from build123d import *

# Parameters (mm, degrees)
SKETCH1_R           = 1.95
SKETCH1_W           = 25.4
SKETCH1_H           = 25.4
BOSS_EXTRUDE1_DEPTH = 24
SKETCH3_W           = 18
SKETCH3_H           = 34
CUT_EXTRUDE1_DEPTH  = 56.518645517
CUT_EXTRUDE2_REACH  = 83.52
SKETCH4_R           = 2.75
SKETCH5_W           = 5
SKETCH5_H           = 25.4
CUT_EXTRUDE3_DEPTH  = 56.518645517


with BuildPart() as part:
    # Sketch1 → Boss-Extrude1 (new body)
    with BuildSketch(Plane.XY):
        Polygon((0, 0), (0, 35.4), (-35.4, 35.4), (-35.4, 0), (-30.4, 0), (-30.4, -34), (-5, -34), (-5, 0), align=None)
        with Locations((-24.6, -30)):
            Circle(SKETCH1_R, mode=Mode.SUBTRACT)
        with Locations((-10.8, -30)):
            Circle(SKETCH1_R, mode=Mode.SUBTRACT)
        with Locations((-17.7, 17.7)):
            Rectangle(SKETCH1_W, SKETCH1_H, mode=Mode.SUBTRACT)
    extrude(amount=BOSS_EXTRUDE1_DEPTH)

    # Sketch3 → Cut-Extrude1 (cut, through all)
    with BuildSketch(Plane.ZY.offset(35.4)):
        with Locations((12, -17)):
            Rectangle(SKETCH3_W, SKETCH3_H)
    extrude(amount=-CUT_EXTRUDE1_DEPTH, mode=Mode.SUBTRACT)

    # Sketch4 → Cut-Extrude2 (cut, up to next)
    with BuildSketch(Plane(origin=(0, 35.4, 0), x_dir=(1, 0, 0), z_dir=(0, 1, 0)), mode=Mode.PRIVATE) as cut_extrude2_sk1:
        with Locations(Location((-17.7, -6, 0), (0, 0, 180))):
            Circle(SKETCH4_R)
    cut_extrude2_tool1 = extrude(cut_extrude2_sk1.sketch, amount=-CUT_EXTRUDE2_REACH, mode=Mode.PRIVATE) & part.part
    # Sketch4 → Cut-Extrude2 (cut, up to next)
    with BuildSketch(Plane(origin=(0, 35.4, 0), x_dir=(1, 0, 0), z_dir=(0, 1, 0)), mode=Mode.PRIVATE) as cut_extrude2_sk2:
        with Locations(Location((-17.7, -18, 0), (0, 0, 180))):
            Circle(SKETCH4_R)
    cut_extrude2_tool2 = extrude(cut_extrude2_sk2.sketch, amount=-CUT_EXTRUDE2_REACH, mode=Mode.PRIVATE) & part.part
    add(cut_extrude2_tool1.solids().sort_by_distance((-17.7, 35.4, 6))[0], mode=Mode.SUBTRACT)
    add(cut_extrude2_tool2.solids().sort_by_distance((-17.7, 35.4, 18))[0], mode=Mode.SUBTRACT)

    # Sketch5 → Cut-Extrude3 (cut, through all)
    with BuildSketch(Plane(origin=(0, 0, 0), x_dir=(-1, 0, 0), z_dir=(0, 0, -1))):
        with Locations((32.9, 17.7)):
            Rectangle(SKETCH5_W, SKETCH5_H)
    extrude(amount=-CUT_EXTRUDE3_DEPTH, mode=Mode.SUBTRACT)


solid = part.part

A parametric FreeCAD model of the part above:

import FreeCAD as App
import Part
import Sketcher
from FreeCAD import Vector


def add_polygon(sketch, points):
    """Adds a closed chain of lines whose ends are joined by coincident constraints."""
    first, n = sketch.GeometryCount, len(points)
    for a, b in zip(points, points[1:] + points[:1]):
        sketch.addGeometry(Part.LineSegment(App.Vector(*a, 0), App.Vector(*b, 0)), False)
    for i in range(n):
        sketch.addConstraint(Sketcher.Constraint("Coincident", first + i, 2, first + (i + 1) % n, 1))

doc = App.newDocument("Part")
body = doc.addObject("PartDesign::Body", "Body")

# Sketch on XY plane
sketch1 = body.newObject("Sketcher::SketchObject", "Sketch")
sketch1.AttachmentSupport = (doc.getObject("XY_Plane"), [""])
sketch1.MapMode = "FlatFace"
add_polygon(sketch1, [(0, 0), (0, 35.4), (-35.4, 35.4), (-35.4, 0), (-30.4, 0), (-30.4, -34), (-5, -34), (-5, 0)])  # lines 0-7
sketch1.addGeometry(Part.Circle(Vector(-24.6, -30, 0), Vector(0, 0, 1), 1.9), False)  # 8
sketch1.addGeometry(Part.Circle(Vector(-10.8, -30, 0), Vector(0, 0, 1), 1.9), False)  # 9
add_polygon(sketch1, [(-5, 5), (-30.4, 5), (-30.4, 30.4), (-5, 30.4)])  # lines 10-13
sketch1.addConstraint([
    Sketcher.Constraint("Vertical", 0),
    Sketcher.Constraint("Horizontal", 1),
    Sketcher.Constraint("Vertical", 2),
    Sketcher.Constraint("Horizontal", 3),
    Sketcher.Constraint("Vertical", 4),
    Sketcher.Constraint("Horizontal", 5),
    Sketcher.Constraint("Vertical", 6),
    Sketcher.Constraint("Horizontal", 7),
    Sketcher.Constraint("Horizontal", 10),
    Sketcher.Constraint("Vertical", 11),
    Sketcher.Constraint("Horizontal", 12),
    Sketcher.Constraint("Vertical", 13),
    Sketcher.Constraint("Coincident", 7, 2, -1, 1),
    Sketcher.Constraint("Equal", 8, 9),
    Sketcher.Constraint("PointOnObject", 2, 2, -1),
    Sketcher.Constraint("Horizontal", 8, 3, 9, 3),
    Sketcher.Constraint("Vertical", 4, 2, 10, 2),
    Sketcher.Constraint("Vertical", 6, 2, 12, 2),
    Sketcher.Constraint("Equal", 3, 7),
    Sketcher.Constraint("Equal", 1, 0),
    Sketcher.Constraint("Equal", 12, 11),
    Sketcher.Constraint("Diameter", 8, 3.9),
    Sketcher.Constraint("DistanceX", 3, 1, 3, 2, 5.0),
    Sketcher.Constraint("DistanceY", 4, 2, 4, 1, 34.0),
    Sketcher.Constraint("DistanceX", 1, 2, 1, 1, 35.4),
    Sketcher.Constraint("DistanceY", 8, 3, -1, 1, 30.0),
    Sketcher.Constraint("DistanceY", -1, 1, 10, 2, 5.0),
    Sketcher.Constraint("DistanceX", 8, 3, -1, 1, 24.6),
    Sketcher.Constraint("DistanceX", 9, 3, -1, 1, 10.8),
])
pad1 = body.newObject("PartDesign::Pad", "Pad")
pad1.Profile = sketch1
pad1.Length = 24

# Sketch on YZ plane
sketch2 = body.newObject("Sketcher::SketchObject", "Sketch001")
sketch2.AttachmentSupport = (doc.getObject("YZ_Plane"), [""])
sketch2.MapMode = "FlatFace"
sketch2.AttachmentOffset = App.Placement(Vector(0, 0, -35.4), App.Rotation())
add_polygon(sketch2, [(0, 3), (-34, 3), (-34, 21), (0, 21)])  # lines 0-3
sketch2.addConstraint([
    Sketcher.Constraint("Horizontal", 0),
    Sketcher.Constraint("Vertical", 1),
    Sketcher.Constraint("Horizontal", 2),
    Sketcher.Constraint("Vertical", 3),
    Sketcher.Constraint("PointOnObject", 2, 2, -2),
    Sketcher.Constraint("DistanceX", 0, 2, 0, 1, 34.0),
    Sketcher.Constraint("DistanceY", 1, 1, 1, 2, 18.0),
    Sketcher.Constraint("DistanceY", -1, 1, 0, 2, 3.0),
])
pocket1 = body.newObject("PartDesign::Pocket", "Pocket")
pocket1.Profile = sketch2
pocket1.Type = "ThroughAll"
pocket1.Reversed = True

# Sketch on XZ plane
sketch3 = body.newObject("Sketcher::SketchObject", "Sketch002")
sketch3.AttachmentSupport = (doc.getObject("XZ_Plane"), [""])
sketch3.MapMode = "FlatFace"
sketch3.AttachmentOffset = App.Placement(Vector(0, 0, -35.4), App.Rotation())
sketch3.addGeometry(Part.Circle(Vector(-17.7, 6, 0), Vector(0, 0, 1), 2.8), False)
sketch3.addConstraint([
    Sketcher.Constraint("Diameter", 0, 5.5),
    Sketcher.Constraint("DistanceY", -1, 1, 0, 3, 6.0),
    Sketcher.Constraint("DistanceX", 0, 3, -1, 1, 17.7),
])
pocket2 = body.newObject("PartDesign::Pocket", "Pocket001")
pocket2.Profile = sketch3
pocket2.Type = "UpToFirst"
pocket2.Reversed = True

# Sketch on XZ plane
sketch4 = body.newObject("Sketcher::SketchObject", "Sketch003")
sketch4.AttachmentSupport = (doc.getObject("XZ_Plane"), [""])
sketch4.MapMode = "FlatFace"
sketch4.AttachmentOffset = App.Placement(Vector(0, 0, -35.4), App.Rotation())
sketch4.addGeometry(Part.Circle(Vector(-17.7, 18, 0), Vector(0, 0, 1), 2.8), False)
sketch4.addConstraint([
    Sketcher.Constraint("Diameter", 0, 5.5),
    Sketcher.Constraint("DistanceY", -1, 1, 0, 3, 18.0),
    Sketcher.Constraint("DistanceX", 0, 3, -1, 1, 17.7),
])
pocket3 = body.newObject("PartDesign::Pocket", "Pocket002")
pocket3.Profile = sketch4
pocket3.Type = "UpToFirst"
pocket3.Reversed = True

# Sketch on XY plane
sketch5 = body.newObject("Sketcher::SketchObject", "Sketch004")
sketch5.AttachmentSupport = (doc.getObject("XY_Plane"), [""])
sketch5.MapMode = "FlatFace"
add_polygon(sketch5, [(-30, 30), (-30, 5), (-35, 5), (-35, 30)])  # lines 0-3
sketch5.addConstraint([
    Sketcher.Constraint("Vertical", 0),
    Sketcher.Constraint("Horizontal", 1),
    Sketcher.Constraint("Vertical", 2),
    Sketcher.Constraint("Horizontal", 3),
    Sketcher.Constraint("DistanceX", 1, 2, 1, 1, 5.0),
    Sketcher.Constraint("DistanceY", 0, 2, 0, 1, 25.4),
    Sketcher.Constraint("DistanceY", -1, 1, 0, 2, 5.0),
    Sketcher.Constraint("DistanceX", 0, 2, -1, 1, 30.4),
])
pocket4 = body.newObject("PartDesign::Pocket", "Pocket003")
pocket4.Profile = sketch5
pocket4.Type = "ThroughAll"
pocket4.Reversed = True

doc.recompute()
